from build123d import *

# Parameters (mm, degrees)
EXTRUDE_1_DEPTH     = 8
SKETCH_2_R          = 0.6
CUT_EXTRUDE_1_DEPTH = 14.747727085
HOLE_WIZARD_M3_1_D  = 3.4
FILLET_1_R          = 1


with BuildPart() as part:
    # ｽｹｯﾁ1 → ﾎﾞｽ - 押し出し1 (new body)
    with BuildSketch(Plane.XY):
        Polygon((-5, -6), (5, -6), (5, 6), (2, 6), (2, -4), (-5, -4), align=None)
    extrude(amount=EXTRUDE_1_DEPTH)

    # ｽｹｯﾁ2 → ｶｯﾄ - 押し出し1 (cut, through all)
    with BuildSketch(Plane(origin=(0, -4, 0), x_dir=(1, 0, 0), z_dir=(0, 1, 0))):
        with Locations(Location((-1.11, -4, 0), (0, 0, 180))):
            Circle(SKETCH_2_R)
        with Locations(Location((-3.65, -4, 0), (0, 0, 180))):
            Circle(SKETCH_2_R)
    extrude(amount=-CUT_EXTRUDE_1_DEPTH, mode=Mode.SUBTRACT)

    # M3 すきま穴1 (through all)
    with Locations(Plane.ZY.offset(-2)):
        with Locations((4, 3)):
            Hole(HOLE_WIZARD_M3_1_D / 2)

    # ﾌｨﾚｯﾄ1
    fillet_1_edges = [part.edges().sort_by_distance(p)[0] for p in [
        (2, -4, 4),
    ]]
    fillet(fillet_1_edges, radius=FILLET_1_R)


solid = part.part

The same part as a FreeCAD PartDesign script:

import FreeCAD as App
import Part
import Sketcher

V = App.Vector


def edges_at(feature, points):
    """Names of the edges that pass closest to the given points."""
    edges = feature.Shape.Edges
    near = lambda p: min(range(len(edges)), key=lambda i: edges[i].distToShape(Part.Vertex(*p))[0])
    return sorted({f"Edge{near(p) + 1}" for p in points})


def add_polygon(sketch, points):
    """Adds a closed chain of lines whose ends are joined by coincident constraints."""
    first, n = sketch.GeometryCount, len(points)
    for a, b in zip(points, points[1:] + points[:1]):
        sketch.addGeometry(Part.LineSegment(App.Vector(*a, 0), App.Vector(*b, 0)), False)
    for i in range(n):
        sketch.addConstraint(Sketcher.Constraint("Coincident", first + i, 2, first + (i + 1) % n, 1))

doc = App.newDocument("Part")
body = doc.addObject("PartDesign::Body", "Body")

# Sketch on XY plane
sketch1 = doc.addObject("Sketcher::SketchObject", "Sketch")
body.addObject(sketch1)
sketch1.AttachmentSupport = (doc.XY_Plane, [""])
sketch1.MapMode = "FlatFace"
add_polygon(sketch1, [(-5, -6), (5, -6), (5, 6), (2, 6), (2, -4), (-5, -4)])  # lines 0-5
sketch1.addConstraint([
    Sketcher.Constraint("Horizontal", 0),
    Sketcher.Constraint("Vertical", 1),
    Sketcher.Constraint("Horizontal", 2),
    Sketcher.Constraint("Vertical", 3),
    Sketcher.Constraint("Horizontal", 4),
    Sketcher.Constraint("Vertical", 5),
    Sketcher.Constraint("Symmetric", 1, 2, 5, 2, -1, 1),
    Sketcher.Constraint("Equal", 0, 3),
    Sketcher.Constraint("DistanceX", 0, 1, 0, 2, 10.0),
    Sketcher.Constraint("DistanceX", 2, 2, 2, 1, 3.0),
    Sketcher.Constraint("DistanceY", 1, 1, 1, 2, 12.0),
])
pad1 = doc.addObject("PartDesign::Pad", "Pad")
body.addObject(pad1)
pad1.Profile = sketch1
pad1.Length = 8

# Sketch on XZ plane
sketch2 = doc.addObject("Sketcher::SketchObject", "Sketch001")
body.addObject(sketch2)
sketch2.AttachmentSupport = (doc.XZ_Plane, [""])
sketch2.MapMode = "FlatFace"
sketch2.AttachmentOffset = App.Placement(V(0, 0, 4), App.Rotation())
sketch2.addGeometry([
    Part.Circle(V(-1.11, 4, 0), V(0, 0, 1), 0.6),
    Part.Circle(V(-3.65, 4, 0), V(0, 0, 1), 0.6),
], False)
sketch2.addConstraint([
    Sketcher.Constraint("Equal", 0, 1),
    Sketcher.Constraint("Horizontal", 0, 3, 1, 3),
    Sketcher.Constraint("Diameter", 0, 1.2),
    Sketcher.Constraint("DistanceY", -1, 1, 0, 3, 4.0),
    Sketcher.Constraint("DistanceX", 0, 3, -1, 1, 1.11),
    Sketcher.Constraint("DistanceX", 1, 3, -1, 1, 3.65),
])
pocket1 = doc.addObject("PartDesign::Pocket", "Pocket")
body.addObject(pocket1)
pocket1.Profile = sketch2
pocket1.Type = "ThroughAll"
pocket1.Reversed = True

# Sketch on YZ plane
sketch3 = doc.addObject("Sketcher::SketchObject", "Sketch002")
body.addObject(sketch3)
sketch3.AttachmentSupport = (doc.YZ_Plane, [""])
sketch3.MapMode = "FlatFace"
sketch3.AttachmentOffset = App.Placement(V(0, 0, 2), App.Rotation())
sketch3.addGeometry(Part.Circle(V(3, 4, 0), V(0, 0, 1), 1.7), False)
sketch3.addConstraint([
    Sketcher.Constraint("Diameter", 0, 3.4),
    Sketcher.Constraint("DistanceX", -1, 1, 0, 3, 3.0),
    Sketcher.Constraint("DistanceY", -1, 1, 0, 3, 4.0),
])
doc.recompute()
hole = doc.addObject("PartDesign::Hole", "Hole")
body.addObject(hole)
hole.Profile = sketch3
hole.ThreadType = "None"
hole.Diameter = 3.4
hole.DepthType = "ThroughAll"
hole.Reversed = True
doc.recompute()

fillet = doc.addObject("PartDesign::Fillet", "Fillet")
body.addObject(fillet)
fillet.Base = (hole, edges_at(hole, [(2, -4, 4)]))
fillet.Radius = 1

doc.recompute()
